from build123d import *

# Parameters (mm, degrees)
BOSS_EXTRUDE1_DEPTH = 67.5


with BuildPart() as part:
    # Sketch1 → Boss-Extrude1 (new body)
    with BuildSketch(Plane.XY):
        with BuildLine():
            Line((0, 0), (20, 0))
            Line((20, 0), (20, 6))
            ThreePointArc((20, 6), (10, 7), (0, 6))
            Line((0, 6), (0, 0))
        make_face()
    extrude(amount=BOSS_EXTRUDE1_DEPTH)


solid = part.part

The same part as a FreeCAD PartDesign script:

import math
import FreeCAD as App
import Part
import Sketcher

V = App.Vector

doc = App.newDocument("Part")
body = doc.addObject("PartDesign::Body", "Body")

sketch1 = doc.addObject("Sketcher::SketchObject", "Sketch")
body.addObject(sketch1)
sketch1.AttachmentSupport = (doc.XY_Plane, [""])
sketch1.MapMode = "FlatFace"
sketch1.addGeometry([
    Part.LineSegment(V(0, 0, 0), V(20, 0, 0)),
    Part.LineSegment(V(20, 0, 0), V(20, 6, 0)),
    Part.ArcOfCircle(Part.Circle(V(10, -44, 0), V(0, 0, 1), 50), math.radians(79), math.radians(101)),
    Part.LineSegment(V(0, 6, 0), V(0, 0, 0)),
], False)
sketch1.addConstraint([
    Sketcher.Constraint("Coincident", 0, 2, 1, 1),
    Sketcher.Constraint("Coincident", 1, 2, 2, 1),
    Sketcher.Constraint("Coincident", 2, 2, 3, 1),
    Sketcher.Constraint("Coincident", 3, 2, 0, 1),
    Sketcher.Constraint("Horizontal", 0),
    Sketcher.Constraint("Vertical", 1),
    Sketcher.Constraint("Vertical", 3),
    Sketcher.Constraint("Coincident", 3, 2, -1, 1),
    Sketcher.Constraint("Horizontal", 1, 2, 2, 2),
    Sketcher.Constraint("Radius", 2, 50.5),
    Sketcher.Constraint("DistanceX", 0, 1, 0, 2, 20.0),
    Sketcher.Constraint("DistanceY", 1, 1, 1, 2, 6.0),
])
pad1 = doc.addObject("PartDesign::Pad", "Pad")
body.addObject(pad1)
pad1.Profile = sketch1
pad1.Length = 67.5

doc.recompute()
